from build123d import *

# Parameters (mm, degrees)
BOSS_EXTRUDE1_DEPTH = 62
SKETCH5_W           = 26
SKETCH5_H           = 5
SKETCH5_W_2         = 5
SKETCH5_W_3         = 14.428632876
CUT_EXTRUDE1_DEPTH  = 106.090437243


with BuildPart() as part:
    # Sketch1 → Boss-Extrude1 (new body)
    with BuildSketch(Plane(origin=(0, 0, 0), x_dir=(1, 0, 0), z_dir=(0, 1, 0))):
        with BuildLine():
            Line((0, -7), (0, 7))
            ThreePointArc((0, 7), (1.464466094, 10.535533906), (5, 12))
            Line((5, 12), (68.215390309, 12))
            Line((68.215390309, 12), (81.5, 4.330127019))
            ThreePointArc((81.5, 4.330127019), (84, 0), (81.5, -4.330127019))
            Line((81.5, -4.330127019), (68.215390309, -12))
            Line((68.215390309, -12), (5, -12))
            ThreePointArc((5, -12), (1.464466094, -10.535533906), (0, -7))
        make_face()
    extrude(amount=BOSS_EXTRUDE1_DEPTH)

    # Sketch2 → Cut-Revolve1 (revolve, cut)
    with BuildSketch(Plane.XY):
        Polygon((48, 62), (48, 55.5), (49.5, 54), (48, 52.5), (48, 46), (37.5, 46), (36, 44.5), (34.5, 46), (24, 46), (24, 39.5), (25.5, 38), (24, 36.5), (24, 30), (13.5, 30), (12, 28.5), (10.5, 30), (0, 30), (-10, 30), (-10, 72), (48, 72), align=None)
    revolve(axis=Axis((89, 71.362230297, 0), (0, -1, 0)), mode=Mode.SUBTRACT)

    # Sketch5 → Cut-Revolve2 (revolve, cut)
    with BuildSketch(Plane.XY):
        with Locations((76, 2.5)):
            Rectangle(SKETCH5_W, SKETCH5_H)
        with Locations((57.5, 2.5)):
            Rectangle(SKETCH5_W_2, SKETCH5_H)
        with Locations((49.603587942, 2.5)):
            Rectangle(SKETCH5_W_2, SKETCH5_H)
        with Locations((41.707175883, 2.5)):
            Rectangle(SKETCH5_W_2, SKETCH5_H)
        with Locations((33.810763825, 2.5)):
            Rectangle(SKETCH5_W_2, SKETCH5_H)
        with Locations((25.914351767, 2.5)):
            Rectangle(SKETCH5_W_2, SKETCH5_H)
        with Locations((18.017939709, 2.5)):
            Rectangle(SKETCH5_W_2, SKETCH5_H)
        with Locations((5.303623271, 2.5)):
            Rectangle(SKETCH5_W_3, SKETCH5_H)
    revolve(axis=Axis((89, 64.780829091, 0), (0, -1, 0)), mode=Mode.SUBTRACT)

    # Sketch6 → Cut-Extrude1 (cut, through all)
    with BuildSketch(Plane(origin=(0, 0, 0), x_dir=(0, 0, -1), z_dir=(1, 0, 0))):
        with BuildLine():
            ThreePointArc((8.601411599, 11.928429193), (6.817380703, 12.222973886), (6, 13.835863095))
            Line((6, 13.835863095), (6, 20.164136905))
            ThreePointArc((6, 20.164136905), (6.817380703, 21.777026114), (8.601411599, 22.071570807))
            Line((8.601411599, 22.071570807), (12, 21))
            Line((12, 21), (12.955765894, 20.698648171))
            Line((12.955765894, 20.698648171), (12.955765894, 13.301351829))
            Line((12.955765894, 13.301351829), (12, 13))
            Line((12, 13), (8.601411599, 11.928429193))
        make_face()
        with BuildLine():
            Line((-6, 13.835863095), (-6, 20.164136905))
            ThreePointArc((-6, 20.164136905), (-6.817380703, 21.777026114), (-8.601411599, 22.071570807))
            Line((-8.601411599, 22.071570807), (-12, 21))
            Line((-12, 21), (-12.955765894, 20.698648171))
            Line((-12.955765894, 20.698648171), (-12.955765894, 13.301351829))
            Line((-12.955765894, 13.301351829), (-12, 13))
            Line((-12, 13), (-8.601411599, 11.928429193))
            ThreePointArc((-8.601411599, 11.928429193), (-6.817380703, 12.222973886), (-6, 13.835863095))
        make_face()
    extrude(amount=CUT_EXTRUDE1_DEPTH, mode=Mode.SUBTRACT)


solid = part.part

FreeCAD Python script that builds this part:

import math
import FreeCAD as App
import Part
import Sketcher
Q = App.Units.Quantity

doc = App.newDocument("Part")
body = doc.addObject("PartDesign::Body", "Body")

# Sketch on XZ plane
sketch1 = body.newObject("Sketcher::SketchObject", "Sketch")
sketch1.AttachmentSupport = (doc.getObject("XZ_Plane"), [""])
sketch1.MapMode = "FlatFace"
sketch1.addGeometry([
    Part.LineSegment(App.Vector(0, -7, 0), App.Vector(0, 7, 0)),  # 0
    Part.ArcOfCircle(Part.Circle(App.Vector(5, 7, 0), App.Vector(0, 0, 1), 5), math.radians(90), math.radians(180)),  # 1
    Part.LineSegment(App.Vector(5, 12, 0), App.Vector(68.21539, 12, 0)),  # 2
    Part.LineSegment(App.Vector(68.21539, 12, 0), App.Vector(81.5, 4.330127, 0)),  # 3
    Part.ArcOfCircle(Part.Circle(App.Vector(79, 0, 0), App.Vector(0, 0, 1), 5), math.radians(-60), math.radians(60)),  # 4
    Part.LineSegment(App.Vector(81.5, -4.330127, 0), App.Vector(68.21539, -12, 0)),  # 5
    Part.LineSegment(App.Vector(68.21539, -12, 0), App.Vector(5, -12, 0)),  # 6
    Part.ArcOfCircle(Part.Circle(App.Vector(5, -7, 0), App.Vector(0, 0, 1), 5), math.radians(180), math.radians(270)),  # 7
], False)
sketch1.addConstraint([
    Sketcher.Constraint("Tangent", 0, 2, 1, 2),
    Sketcher.Constraint("Tangent", 1, 1, 2, 1),
    Sketcher.Constraint("Coincident", 2, 2, 3, 1),
    Sketcher.Constraint("Tangent", 3, 2, 4, 2),
    Sketcher.Constraint("Tangent", 4, 1, 5, 1),
    Sketcher.Constraint("Coincident", 5, 2, 6, 1),
    Sketcher.Constraint("Tangent", 6, 2, 7, 2),
    Sketcher.Constraint("Tangent", 7, 1, 0, 1),
    Sketcher.Constraint("Vertical", 0),
    Sketcher.Constraint("Horizontal", 2),
    Sketcher.Constraint("Horizontal", 6),
    Sketcher.Constraint("Equal", 1, 4),
    Sketcher.Constraint("Equal", 4, 7),
    Sketcher.Constraint("Symmetric", 0, 2, 7, 1, -1, 1),
    Sketcher.Constraint("Symmetric", 3, 2, 4, 1, -1),
    Sketcher.Constraint("Radius", 1, 5.0),
    Sketcher.Constraint("DistanceY", 0, 1, 0, 2, 14.0),
    Sketcher.Constraint("Angle", 3, Q("-30 deg")),
    Sketcher.Constraint("DistanceX", -1, 1, 4, 3, 79.0),
])
pad1 = body.newObject("PartDesign::Pad", "Pad")
pad1.Profile = sketch1
pad1.Length = 62
pad1.Reversed = True

# Sketch on XY plane
sketch2 = body.newObject("Sketcher::SketchObject", "Sketch001")
sketch2.AttachmentSupport = (doc.getObject("XY_Plane"), [""])
sketch2.MapMode = "FlatFace"
sketch2.addGeometry([
    Part.LineSegment(App.Vector(48, 55.5, 0), App.Vector(48, 72, 0)),  # 0
    Part.LineSegment(App.Vector(48, 72, 0), App.Vector(-10, 72, 0)),  # 1
    Part.LineSegment(App.Vector(-10, 72, 0), App.Vector(-10, 30, 0)),  # 2
    Part.LineSegment(App.Vector(-10, 30, 0), App.Vector(10.5, 30, 0)),  # 3
    Part.LineSegment(App.Vector(10.5, 30, 0), App.Vector(12, 28.5, 0)),  # 4
    Part.LineSegment(App.Vector(12, 28.5, 0), App.Vector(13.5, 30, 0)),  # 5
    Part.LineSegment(App.Vector(13.5, 30, 0), App.Vector(24, 30, 0)),  # 6
    Part.LineSegment(App.Vector(24, 30, 0), App.Vector(24, 36.5, 0)),  # 7
    Part.LineSegment(App.Vector(24, 36.5, 0), App.Vector(25.5, 38, 0)),  # 8
    Part.LineSegment(App.Vector(25.5, 38, 0), App.Vector(24, 39.5, 0)),  # 9
    Part.LineSegment(App.Vector(24, 39.5, 0), App.Vector(24, 46, 0)),  # 10
    Part.LineSegment(App.Vector(24, 46, 0), App.Vector(34.5, 46, 0)),  # 11
    Part.LineSegment(App.Vector(34.5, 46, 0), App.Vector(36, 44.5, 0)),  # 12
    Part.LineSegment(App.Vector(36, 44.5, 0), App.Vector(37.5, 46, 0)),  # 13
    Part.LineSegment(App.Vector(37.5, 46, 0), App.Vector(48, 46, 0)),  # 14
    Part.LineSegment(App.Vector(48, 46, 0), App.Vector(48, 52.5, 0)),  # 15
    Part.LineSegment(App.Vector(48, 52.5, 0), App.Vector(49.5, 54, 0)),  # 16
    Part.LineSegment(App.Vector(49.5, 54, 0), App.Vector(48, 55.5, 0)),  # 17
], False)
sketch2.addGeometry(Part.LineSegment(App.Vector(89, 72, 0), App.Vector(89, 28.5, 0)), True)  # axis
sketch2.addConstraint([
    Sketcher.Constraint("Coincident", 0, 2, 1, 1),
    Sketcher.Constraint("Coincident", 1, 2, 2, 1),
    Sketcher.Constraint("Coincident", 2, 2, 3, 1),
    Sketcher.Constraint("Coincident", 3, 2, 4, 1),
    Sketcher.Constraint("Coincident", 4, 2, 5, 1),
    Sketcher.Constraint("Coincident", 5, 2, 6, 1),
    Sketcher.Constraint("Coincident", 6, 2, 7, 1),
    Sketcher.Constraint("Coincident", 7, 2, 8, 1),
    Sketcher.Constraint("Coincident", 8, 2, 9, 1),
    Sketcher.Constraint("Coincident", 9, 2, 10, 1),
    Sketcher.Constraint("Coincident", 10, 2, 11, 1),
    Sketcher.Constraint("Coincident", 11, 2, 12, 1),
    Sketcher.Constraint("Coincident", 12, 2, 13, 1),
    Sketcher.Constraint("Coincident", 13, 2, 14, 1),
    Sketcher.Constraint("Coincident", 14, 2, 15, 1),
    Sketcher.Constraint("Coincident", 15, 2, 16, 1),
    Sketcher.Constraint("Coincident", 16, 2, 17, 1),
    Sketcher.Constraint("Coincident", 17, 2, 0, 1),
    Sketcher.Constraint("Vertical", 0),
    Sketcher.Constraint("Horizontal", 1),
    Sketcher.Constraint("Vertical", 2),
    Sketcher.Constraint("Horizontal", 3),
    Sketcher.Constraint("Horizontal", 6),
    Sketcher.Constraint("Vertical", 7),
    Sketcher.Constraint("Vertical", 10),
    Sketcher.Constraint("Horizontal", 11),
    Sketcher.Constraint("Horizontal", 14),
    Sketcher.Constraint("Vertical", 15),
    Sketcher.Constraint("Vertical", 18),
    Sketcher.Constraint("Perpendicular", 4, 5),
    Sketcher.Constraint("Parallel", 5, 8),
    Sketcher.Constraint("Perpendicular", 8, 9),
    Sketcher.Constraint("Parallel", 9, 12),
    Sketcher.Constraint("Perpendicular", 12, 13),
    Sketcher.Constraint("Parallel", 13, 16),
    Sketcher.Constraint("Perpendicular", 16, 17),
    Sketcher.Constraint("Horizontal", 3, 2, 5, 2),
    Sketcher.Constraint("Horizontal", 11, 2, 13, 2),
    Sketcher.Constraint("Horizontal", 1, 2, 18, 1),
    Sketcher.Constraint("Horizontal", 4, 2, 18, 2),
    Sketcher.Constraint("Vertical", 7, 2, 9, 2),
    Sketcher.Constraint("Vertical", 0, 2, 14, 2),
    Sketcher.Constraint("Equal", 6, 11),
    Sketcher.Constraint("Equal", 11, 14),
    Sketcher.Constraint("Equal", 7, 10),
    Sketcher.Constraint("Equal", 10, 15),
    Sketcher.Constraint("Equal", 4, 5),
    Sketcher.Constraint("Equal", 5, 8),
    Sketcher.Constraint("Equal", 9, 12),
    Sketcher.Constraint("Equal", 13, 16),
    Sketcher.Constraint("DistanceX", 1, 2, 1, 1, 58.0),
    Sketcher.Constraint("DistanceY", 2, 2, 2, 1, 42.0),
    Sketcher.Constraint("DistanceX", 3, 1, 3, 2, 20.5),
    Sketcher.Constraint("DistanceX", 6, 1, 6, 2, 10.5),
    Sketcher.Constraint("DistanceY", 0, 1, 0, 2, 16.5),
    Sketcher.Constraint("DistanceX", -1, 1, 0, 2, 48.0),
    Sketcher.Constraint("DistanceY", -1, 1, 0, 2, 72.0),
    Sketcher.Constraint("DistanceX", -1, 1, 18, 1, 89.0),
])
groove = body.newObject("PartDesign::Groove", "Groove")
groove.Profile = sketch2
groove.ReferenceAxis = (sketch2, ["Axis0"])
groove.Angle = 360

# Sketch on XY plane
sketch3 = body.newObject("Sketcher::SketchObject", "Sketch002")
sketch3.AttachmentSupport = (doc.getObject("XY_Plane"), [""])
sketch3.MapMode = "FlatFace"
sketch3.addGeometry([
    Part.LineSegment(App.Vector(63, 5, 0), App.Vector(63, 0, 0)),  # 0
    Part.LineSegment(App.Vector(63, 0, 0), App.Vector(89, 0, 0)),  # 1
    Part.LineSegment(App.Vector(89, 0, 0), App.Vector(89, 5, 0)),  # 2
    Part.LineSegment(App.Vector(89, 5, 0), App.Vector(63, 5, 0)),  # 3
    Part.LineSegment(App.Vector(55, 5, 0), App.Vector(55, 0, 0)),  # 4
    Part.LineSegment(App.Vector(55, 0, 0), App.Vector(60, 0, 0)),  # 5
    Part.LineSegment(App.Vector(60, 0, 0), App.Vector(60, 5, 0)),  # 6
    Part.LineSegment(App.Vector(60, 5, 0), App.Vector(55, 5, 0)),  # 7
    Part.LineSegment(App.Vector(47.103588, 5, 0), App.Vector(47.103588, 0, 0)),  # 8
    Part.LineSegment(App.Vector(47.103588, 0, 0), App.Vector(52.103588, 0, 0)),  # 9
    Part.LineSegment(App.Vector(52.103588, 0, 0), App.Vector(52.103588, 5, 0)),  # 10
    Part.LineSegment(App.Vector(52.103588, 5, 0), App.Vector(47.103588, 5, 0)),  # 11
    Part.LineSegment(App.Vector(39.207176, 5, 0), App.Vector(39.207176, 0, 0)),  # 12
    Part.LineSegment(App.Vector(39.207176, 0, 0), App.Vector(44.207176, 0, 0)),  # 13
    Part.LineSegment(App.Vector(44.207176, 0, 0), App.Vector(44.207176, 5, 0)),  # 14
    Part.LineSegment(App.Vector(44.207176, 5, 0), App.Vector(39.207176, 5, 0)),  # 15
    Part.LineSegment(App.Vector(31.310764, 5, 0), App.Vector(31.310764, 0, 0)),  # 16
    Part.LineSegment(App.Vector(31.310764, 0, 0), App.Vector(36.310764, 0, 0)),  # 17
    Part.LineSegment(App.Vector(36.310764, 0, 0), App.Vector(36.310764, 5, 0)),  # 18
    Part.LineSegment(App.Vector(36.310764, 5, 0), App.Vector(31.310764, 5, 0)),  # 19
    Part.LineSegment(App.Vector(23.414352, 5, 0), App.Vector(23.414352, 0, 0)),  # 20
    Part.LineSegment(App.Vector(23.414352, 0, 0), App.Vector(28.414352, 0, 0)),  # 21
    Part.LineSegment(App.Vector(28.414352, 0, 0), App.Vector(28.414352, 5, 0)),  # 22
    Part.LineSegment(App.Vector(28.414352, 5, 0), App.Vector(23.414352, 5, 0)),  # 23
    Part.LineSegment(App.Vector(15.51794, 5, 0), App.Vector(15.51794, 0, 0)),  # 24
    Part.LineSegment(App.Vector(15.51794, 0, 0), App.Vector(20.51794, 0, 0)),  # 25
    Part.LineSegment(App.Vector(20.51794, 0, 0), App.Vector(20.51794, 5, 0)),  # 26
    Part.LineSegment(App.Vector(20.51794, 5, 0), App.Vector(15.51794, 5, 0)),  # 27
    Part.LineSegment(App.Vector(-1.910693, 5, 0), App.Vector(-1.910693, 0, 0)),  # 28
    Part.LineSegment(App.Vector(-1.910693, 0, 0), App.Vector(12.51794, 0, 0)),  # 29
    Part.LineSegment(App.Vector(12.51794, 0, 0), App.Vector(12.51794, 5, 0)),  # 30
    Part.LineSegment(App.Vector(12.51794, 5, 0), App.Vector(-1.910693, 5, 0)),  # 31
], False)
sketch3.addGeometry(Part.LineSegment(App.Vector(89, 5, 0), App.Vector(89, 0, 0)), True)  # axis
sketch3.addConstraint([
    Sketcher.Constraint("Coincident", 0, 2, 1, 1),
    Sketcher.Constraint("Coincident", 1, 2, 2, 1),
    Sketcher.Constraint("Coincident", 2, 2, 3, 1),
    Sketcher.Constraint("Coincident", 3, 2, 0, 1),
    Sketcher.Constraint("Coincident", 4, 2, 5, 1),
    Sketcher.Constraint("Coincident", 5, 2, 6, 1),
    Sketcher.Constraint("Coincident", 6, 2, 7, 1),
    Sketcher.Constraint("Coincident", 7, 2, 4, 1),
    Sketcher.Constraint("Coincident", 8, 2, 9, 1),
    Sketcher.Constraint("Coincident", 9, 2, 10, 1),
    Sketcher.Constraint("Coincident", 10, 2, 11, 1),
    Sketcher.Constraint("Coincident", 11, 2, 8, 1),
    Sketcher.Constraint("Coincident", 12, 2, 13, 1),
    Sketcher.Constraint("Coincident", 13, 2, 14, 1),
    Sketcher.Constraint("Coincident", 14, 2, 15, 1),
    Sketcher.Constraint("Coincident", 15, 2, 12, 1),
    Sketcher.Constraint("Coincident", 16, 2, 17, 1),
    Sketcher.Constraint("Coincident", 17, 2, 18, 1),
    Sketcher.Constraint("Coincident", 18, 2, 19, 1),
    Sketcher.Constraint("Coincident", 19, 2, 16, 1),
    Sketcher.Constraint("Coincident", 20, 2, 21, 1),
    Sketcher.Constraint("Coincident", 21, 2, 22, 1),
    Sketcher.Constraint("Coincident", 22, 2, 23, 1),
    Sketcher.Constraint("Coincident", 23, 2, 20, 1),
    Sketcher.Constraint("Coincident", 24, 2, 25, 1),
    Sketcher.Constraint("Coincident", 25, 2, 26, 1),
    Sketcher.Constraint("Coincident", 26, 2, 27, 1),
    Sketcher.Constraint("Coincident", 27, 2, 24, 1),
    Sketcher.Constraint("Coincident", 28, 2, 29, 1),
    Sketcher.Constraint("Coincident", 29, 2, 30, 1),
    Sketcher.Constraint("Coincident", 30, 2, 31, 1),
    Sketcher.Constraint("Coincident", 31, 2, 28, 1),
    Sketcher.Constraint("Vertical", 0),
    Sketcher.Constraint("Horizontal", 1),
    Sketcher.Constraint("Vertical", 2),
    Sketcher.Constraint("Horizontal", 3),
    Sketcher.Constraint("Vertical", 4),
    Sketcher.Constraint("Horizontal", 5),
    Sketcher.Constraint("Vertical", 6),
    Sketcher.Constraint("Horizontal", 7),
    Sketcher.Constraint("Vertical", 8),
    Sketcher.Constraint("Horizontal", 9),
    Sketcher.Constraint("Vertical", 10),
    Sketcher.Constraint("Horizontal", 11),
    Sketcher.Constraint("Vertical", 12),
    Sketcher.Constraint("Horizontal", 13),
    Sketcher.Constraint("Vertical", 14),
    Sketcher.Constraint("Horizontal", 15),
    Sketcher.Constraint("Vertical", 16),
    Sketcher.Constraint("Horizontal", 17),
    Sketcher.Constraint("Vertical", 18),
    Sketcher.Constraint("Horizontal", 19),
    Sketcher.Constraint("Vertical", 20),
    Sketcher.Constraint("Horizontal", 21),
    Sketcher.Constraint("Vertical", 22),
    Sketcher.Constraint("Horizontal", 23),
    Sketcher.Constraint("Vertical", 24),
    Sketcher.Constraint("Horizontal", 25),
    Sketcher.Constraint("Vertical", 26),
    Sketcher.Constraint("Horizontal", 27),
    Sketcher.Constraint("Vertical", 28),
    Sketcher.Constraint("Horizontal", 29),
    Sketcher.Constraint("Vertical", 30),
    Sketcher.Constraint("Horizontal", 31),
    Sketcher.Constraint("Vertical", 32),
    Sketcher.Constraint("Coincident", 32, 1, 2, 2),
    Sketcher.Constraint("PointOnObject", 0, 2, -1),
    Sketcher.Constraint("PointOnObject", 4, 2, -1),
    Sketcher.Constraint("PointOnObject", 8, 2, -1),
    Sketcher.Constraint("PointOnObject", 12, 2, -1),
    Sketcher.Constraint("PointOnObject", 16, 2, -1),
    Sketcher.Constraint("PointOnObject", 20, 2, -1),
    Sketcher.Constraint("PointOnObject", 24, 2, -1),
    Sketcher.Constraint("PointOnObject", 28, 2, -1),
    Sketcher.Constraint("PointOnObject", 32, 2, -1),
    Sketcher.Constraint("Horizontal", 3, 2, 6, 2),
    Sketcher.Constraint("Horizontal", 7, 2, 10, 2),
    Sketcher.Constraint("Horizontal", 11, 2, 14, 2),
    Sketcher.Constraint("Horizontal", 15, 2, 18, 2),
    Sketcher.Constraint("Horizontal", 19, 2, 22, 2),
    Sketcher.Constraint("Horizontal", 23, 2, 26, 2),
    Sketcher.Constraint("Horizontal", 27, 2, 30, 2),
    Sketcher.Constraint("Equal", 7, 9),
    Sketcher.Constraint("Equal", 11, 13),
    Sketcher.Constraint("Equal", 15, 17),
    Sketcher.Constraint("Equal", 19, 21),
    Sketcher.Constraint("Equal", 23, 25),
    Sketcher.Constraint("Equal", 27, 0),
    Sketcher.Constraint("DistanceX", 1, 1, 1, 2, 26.0),
    Sketcher.Constraint("DistanceX", 5, 1, 5, 2, 5.0),
    Sketcher.Constraint("DistanceX", -1, 1, 0, 2, 63.0),
    Sketcher.Constraint("DistanceX", -1, 1, 4, 2, 55.0),
    Sketcher.Constraint("DistanceX", 29, 2, 24, 2, 3.0),
    Sketcher.Constraint("DistanceX", 29, 1, 29, 2, 14.428633),
    Sketcher.Constraint("DistanceX", -1, 1, 20, 2, 23.414352),
    Sketcher.Constraint("DistanceX", -1, 1, 24, 2, 15.51794),
    Sketcher.Constraint("DistanceX", -1, 1, 8, 2, 47.103588),
    Sketcher.Constraint("DistanceX", -1, 1, 12, 2, 39.207176),
    Sketcher.Constraint("DistanceX", -1, 1, 16, 2, 31.310764),
])
groove2 = body.newObject("PartDesign::Groove", "Groove001")
groove2.Profile = sketch3
groove2.ReferenceAxis = (sketch3, ["Axis0"])
groove2.Angle = 360

# Sketch on YZ plane
sketch4 = body.newObject("Sketcher::SketchObject", "Sketch003")
sketch4.AttachmentSupport = (doc.getObject("YZ_Plane"), [""])
sketch4.MapMode = "FlatFace"
sketch4.addGeometry([
    Part.ArcOfCircle(Part.Circle(App.Vector(13.835863, -8, 0), App.Vector(0, 0, 1), 2), math.radians(90), math.radians(197.5)),  # 0
    Part.LineSegment(App.Vector(11.928429, -8.601412, 0), App.Vector(13, -12, 0)),  # 1
    Part.LineSegment(App.Vector(13, -12, 0), App.Vector(13.301352, -12.955766, 0)),  # 2
    Part.LineSegment(App.Vector(13.301352, -12.955766, 0), App.Vector(20.698648, -12.955766, 0)),  # 3
    Part.LineSegment(App.Vector(20.698648, -12.955766, 0), App.Vector(21, -12, 0)),  # 4
    Part.LineSegment(App.Vector(21, -12, 0), App.Vector(22.071571, -8.601412, 0)),  # 5
    Part.ArcOfCircle(Part.Circle(App.Vector(20.164137, -8, 0), App.Vector(0, 0, 1), 2), math.radians(-17.5), math.radians(90)),  # 6
    Part.LineSegment(App.Vector(20.164137, -6, 0), App.Vector(13.835863, -6, 0)),  # 7
    Part.LineSegment(App.Vector(13.835863, 6, 0), App.Vector(20.164137, 6, 0)),  # 8
    Part.ArcOfCircle(Part.Circle(App.Vector(20.164137, 8, 0), App.Vector(0, 0, 1), 2), math.radians(-90), math.radians(17.5)),  # 9
    Part.LineSegment(App.Vector(22.071571, 8.601412, 0), App.Vector(21, 12, 0)),  # 10
    Part.LineSegment(App.Vector(21, 12, 0), App.Vector(20.698648, 12.955766, 0)),  # 11
    Part.LineSegment(App.Vector(20.698648, 12.955766, 0), App.Vector(13.301352, 12.955766, 0)),  # 12
    Part.LineSegment(App.Vector(13.301352, 12.955766, 0), App.Vector(13, 12, 0)),  # 13
    Part.LineSegment(App.Vector(13, 12, 0), App.Vector(11.928429, 8.601412, 0)),  # 14
    Part.ArcOfCircle(Part.Circle(App.Vector(13.835863, 8, 0), App.Vector(0, 0, 1), 2), math.radians(162.5), math.radians(270)),  # 15
], False)
sketch4.addConstraint([
    Sketcher.Constraint("Tangent", 0, 2, 1, 1),
    Sketcher.Constraint("Coincident", 1, 2, 2, 1),
    Sketcher.Constraint("Coincident", 2, 2, 3, 1),
    Sketcher.Constraint("Coincident", 3, 2, 4, 1),
    Sketcher.Constraint("Coincident", 4, 2, 5, 1),
    Sketcher.Constraint("Tangent", 5, 2, 6, 1),
    Sketcher.Constraint("Tangent", 6, 2, 7, 1),
    Sketcher.Constraint("Tangent", 7, 2, 0, 1),
    Sketcher.Constraint("Tangent", 8, 2, 9, 1),
    Sketcher.Constraint("Tangent", 9, 2, 10, 1),
    Sketcher.Constraint("Coincident", 10, 2, 11, 1),
    Sketcher.Constraint("Coincident", 11, 2, 12, 1),
    Sketcher.Constraint("Coincident", 12, 2, 13, 1),
    Sketcher.Constraint("Coincident", 13, 2, 14, 1),
    Sketcher.Constraint("Tangent", 14, 2, 15, 1),
    Sketcher.Constraint("Tangent", 15, 2, 8, 1),
    Sketcher.Constraint("Horizontal", 3),
    Sketcher.Constraint("Horizontal", 7),
    Sketcher.Constraint("Horizontal", 8),
    Sketcher.Constraint("Horizontal", 12),
    Sketcher.Constraint("Equal", 0, 6),
    Sketcher.Constraint("Equal", 6, 9),
    Sketcher.Constraint("Equal", 9, 15),
    Sketcher.Constraint("Symmetric", 6, 3, 9, 3, -1),
    Sketcher.Constraint("Symmetric", 4, 2, 10, 2, -1),
    Sketcher.Constraint("Symmetric", 3, 2, 11, 2, -1),
    Sketcher.Constraint("Symmetric", 1, 2, 13, 2, -1),
    Sketcher.Constraint("Parallel", 1, 2),
    Sketcher.Constraint("Parallel", 4, 5),
    Sketcher.Constraint("Parallel", 2, 10),
    Sketcher.Constraint("Parallel", 5, 13),
    Sketcher.Constraint("Parallel", 13, 14),
    Sketcher.Constraint("Horizontal", 1, 2, 4, 2),
    Sketcher.Constraint("Radius", 0, 2.0),
    Sketcher.Constraint("DistanceY", 0, 3, -1, 1, 8.0),
    Sketcher.Constraint("DistanceX", -1, 1, 1, 2, 13.0),
    Sketcher.Constraint("DistanceY", 1, 2, -1, 1, 12.0),
    Sketcher.Constraint("DistanceX", -1, 1, 4, 2, 21.0),
    Sketcher.Constraint("Angle", 1, Q("-72.5 deg")),
    Sketcher.Constraint("Distance", 2, 1.002148),
])
pocket1 = body.newObject("PartDesign::Pocket", "Pocket")
pocket1.Profile = sketch4
pocket1.Type = "ThroughAll"
pocket1.Reversed = True

doc.recompute()
